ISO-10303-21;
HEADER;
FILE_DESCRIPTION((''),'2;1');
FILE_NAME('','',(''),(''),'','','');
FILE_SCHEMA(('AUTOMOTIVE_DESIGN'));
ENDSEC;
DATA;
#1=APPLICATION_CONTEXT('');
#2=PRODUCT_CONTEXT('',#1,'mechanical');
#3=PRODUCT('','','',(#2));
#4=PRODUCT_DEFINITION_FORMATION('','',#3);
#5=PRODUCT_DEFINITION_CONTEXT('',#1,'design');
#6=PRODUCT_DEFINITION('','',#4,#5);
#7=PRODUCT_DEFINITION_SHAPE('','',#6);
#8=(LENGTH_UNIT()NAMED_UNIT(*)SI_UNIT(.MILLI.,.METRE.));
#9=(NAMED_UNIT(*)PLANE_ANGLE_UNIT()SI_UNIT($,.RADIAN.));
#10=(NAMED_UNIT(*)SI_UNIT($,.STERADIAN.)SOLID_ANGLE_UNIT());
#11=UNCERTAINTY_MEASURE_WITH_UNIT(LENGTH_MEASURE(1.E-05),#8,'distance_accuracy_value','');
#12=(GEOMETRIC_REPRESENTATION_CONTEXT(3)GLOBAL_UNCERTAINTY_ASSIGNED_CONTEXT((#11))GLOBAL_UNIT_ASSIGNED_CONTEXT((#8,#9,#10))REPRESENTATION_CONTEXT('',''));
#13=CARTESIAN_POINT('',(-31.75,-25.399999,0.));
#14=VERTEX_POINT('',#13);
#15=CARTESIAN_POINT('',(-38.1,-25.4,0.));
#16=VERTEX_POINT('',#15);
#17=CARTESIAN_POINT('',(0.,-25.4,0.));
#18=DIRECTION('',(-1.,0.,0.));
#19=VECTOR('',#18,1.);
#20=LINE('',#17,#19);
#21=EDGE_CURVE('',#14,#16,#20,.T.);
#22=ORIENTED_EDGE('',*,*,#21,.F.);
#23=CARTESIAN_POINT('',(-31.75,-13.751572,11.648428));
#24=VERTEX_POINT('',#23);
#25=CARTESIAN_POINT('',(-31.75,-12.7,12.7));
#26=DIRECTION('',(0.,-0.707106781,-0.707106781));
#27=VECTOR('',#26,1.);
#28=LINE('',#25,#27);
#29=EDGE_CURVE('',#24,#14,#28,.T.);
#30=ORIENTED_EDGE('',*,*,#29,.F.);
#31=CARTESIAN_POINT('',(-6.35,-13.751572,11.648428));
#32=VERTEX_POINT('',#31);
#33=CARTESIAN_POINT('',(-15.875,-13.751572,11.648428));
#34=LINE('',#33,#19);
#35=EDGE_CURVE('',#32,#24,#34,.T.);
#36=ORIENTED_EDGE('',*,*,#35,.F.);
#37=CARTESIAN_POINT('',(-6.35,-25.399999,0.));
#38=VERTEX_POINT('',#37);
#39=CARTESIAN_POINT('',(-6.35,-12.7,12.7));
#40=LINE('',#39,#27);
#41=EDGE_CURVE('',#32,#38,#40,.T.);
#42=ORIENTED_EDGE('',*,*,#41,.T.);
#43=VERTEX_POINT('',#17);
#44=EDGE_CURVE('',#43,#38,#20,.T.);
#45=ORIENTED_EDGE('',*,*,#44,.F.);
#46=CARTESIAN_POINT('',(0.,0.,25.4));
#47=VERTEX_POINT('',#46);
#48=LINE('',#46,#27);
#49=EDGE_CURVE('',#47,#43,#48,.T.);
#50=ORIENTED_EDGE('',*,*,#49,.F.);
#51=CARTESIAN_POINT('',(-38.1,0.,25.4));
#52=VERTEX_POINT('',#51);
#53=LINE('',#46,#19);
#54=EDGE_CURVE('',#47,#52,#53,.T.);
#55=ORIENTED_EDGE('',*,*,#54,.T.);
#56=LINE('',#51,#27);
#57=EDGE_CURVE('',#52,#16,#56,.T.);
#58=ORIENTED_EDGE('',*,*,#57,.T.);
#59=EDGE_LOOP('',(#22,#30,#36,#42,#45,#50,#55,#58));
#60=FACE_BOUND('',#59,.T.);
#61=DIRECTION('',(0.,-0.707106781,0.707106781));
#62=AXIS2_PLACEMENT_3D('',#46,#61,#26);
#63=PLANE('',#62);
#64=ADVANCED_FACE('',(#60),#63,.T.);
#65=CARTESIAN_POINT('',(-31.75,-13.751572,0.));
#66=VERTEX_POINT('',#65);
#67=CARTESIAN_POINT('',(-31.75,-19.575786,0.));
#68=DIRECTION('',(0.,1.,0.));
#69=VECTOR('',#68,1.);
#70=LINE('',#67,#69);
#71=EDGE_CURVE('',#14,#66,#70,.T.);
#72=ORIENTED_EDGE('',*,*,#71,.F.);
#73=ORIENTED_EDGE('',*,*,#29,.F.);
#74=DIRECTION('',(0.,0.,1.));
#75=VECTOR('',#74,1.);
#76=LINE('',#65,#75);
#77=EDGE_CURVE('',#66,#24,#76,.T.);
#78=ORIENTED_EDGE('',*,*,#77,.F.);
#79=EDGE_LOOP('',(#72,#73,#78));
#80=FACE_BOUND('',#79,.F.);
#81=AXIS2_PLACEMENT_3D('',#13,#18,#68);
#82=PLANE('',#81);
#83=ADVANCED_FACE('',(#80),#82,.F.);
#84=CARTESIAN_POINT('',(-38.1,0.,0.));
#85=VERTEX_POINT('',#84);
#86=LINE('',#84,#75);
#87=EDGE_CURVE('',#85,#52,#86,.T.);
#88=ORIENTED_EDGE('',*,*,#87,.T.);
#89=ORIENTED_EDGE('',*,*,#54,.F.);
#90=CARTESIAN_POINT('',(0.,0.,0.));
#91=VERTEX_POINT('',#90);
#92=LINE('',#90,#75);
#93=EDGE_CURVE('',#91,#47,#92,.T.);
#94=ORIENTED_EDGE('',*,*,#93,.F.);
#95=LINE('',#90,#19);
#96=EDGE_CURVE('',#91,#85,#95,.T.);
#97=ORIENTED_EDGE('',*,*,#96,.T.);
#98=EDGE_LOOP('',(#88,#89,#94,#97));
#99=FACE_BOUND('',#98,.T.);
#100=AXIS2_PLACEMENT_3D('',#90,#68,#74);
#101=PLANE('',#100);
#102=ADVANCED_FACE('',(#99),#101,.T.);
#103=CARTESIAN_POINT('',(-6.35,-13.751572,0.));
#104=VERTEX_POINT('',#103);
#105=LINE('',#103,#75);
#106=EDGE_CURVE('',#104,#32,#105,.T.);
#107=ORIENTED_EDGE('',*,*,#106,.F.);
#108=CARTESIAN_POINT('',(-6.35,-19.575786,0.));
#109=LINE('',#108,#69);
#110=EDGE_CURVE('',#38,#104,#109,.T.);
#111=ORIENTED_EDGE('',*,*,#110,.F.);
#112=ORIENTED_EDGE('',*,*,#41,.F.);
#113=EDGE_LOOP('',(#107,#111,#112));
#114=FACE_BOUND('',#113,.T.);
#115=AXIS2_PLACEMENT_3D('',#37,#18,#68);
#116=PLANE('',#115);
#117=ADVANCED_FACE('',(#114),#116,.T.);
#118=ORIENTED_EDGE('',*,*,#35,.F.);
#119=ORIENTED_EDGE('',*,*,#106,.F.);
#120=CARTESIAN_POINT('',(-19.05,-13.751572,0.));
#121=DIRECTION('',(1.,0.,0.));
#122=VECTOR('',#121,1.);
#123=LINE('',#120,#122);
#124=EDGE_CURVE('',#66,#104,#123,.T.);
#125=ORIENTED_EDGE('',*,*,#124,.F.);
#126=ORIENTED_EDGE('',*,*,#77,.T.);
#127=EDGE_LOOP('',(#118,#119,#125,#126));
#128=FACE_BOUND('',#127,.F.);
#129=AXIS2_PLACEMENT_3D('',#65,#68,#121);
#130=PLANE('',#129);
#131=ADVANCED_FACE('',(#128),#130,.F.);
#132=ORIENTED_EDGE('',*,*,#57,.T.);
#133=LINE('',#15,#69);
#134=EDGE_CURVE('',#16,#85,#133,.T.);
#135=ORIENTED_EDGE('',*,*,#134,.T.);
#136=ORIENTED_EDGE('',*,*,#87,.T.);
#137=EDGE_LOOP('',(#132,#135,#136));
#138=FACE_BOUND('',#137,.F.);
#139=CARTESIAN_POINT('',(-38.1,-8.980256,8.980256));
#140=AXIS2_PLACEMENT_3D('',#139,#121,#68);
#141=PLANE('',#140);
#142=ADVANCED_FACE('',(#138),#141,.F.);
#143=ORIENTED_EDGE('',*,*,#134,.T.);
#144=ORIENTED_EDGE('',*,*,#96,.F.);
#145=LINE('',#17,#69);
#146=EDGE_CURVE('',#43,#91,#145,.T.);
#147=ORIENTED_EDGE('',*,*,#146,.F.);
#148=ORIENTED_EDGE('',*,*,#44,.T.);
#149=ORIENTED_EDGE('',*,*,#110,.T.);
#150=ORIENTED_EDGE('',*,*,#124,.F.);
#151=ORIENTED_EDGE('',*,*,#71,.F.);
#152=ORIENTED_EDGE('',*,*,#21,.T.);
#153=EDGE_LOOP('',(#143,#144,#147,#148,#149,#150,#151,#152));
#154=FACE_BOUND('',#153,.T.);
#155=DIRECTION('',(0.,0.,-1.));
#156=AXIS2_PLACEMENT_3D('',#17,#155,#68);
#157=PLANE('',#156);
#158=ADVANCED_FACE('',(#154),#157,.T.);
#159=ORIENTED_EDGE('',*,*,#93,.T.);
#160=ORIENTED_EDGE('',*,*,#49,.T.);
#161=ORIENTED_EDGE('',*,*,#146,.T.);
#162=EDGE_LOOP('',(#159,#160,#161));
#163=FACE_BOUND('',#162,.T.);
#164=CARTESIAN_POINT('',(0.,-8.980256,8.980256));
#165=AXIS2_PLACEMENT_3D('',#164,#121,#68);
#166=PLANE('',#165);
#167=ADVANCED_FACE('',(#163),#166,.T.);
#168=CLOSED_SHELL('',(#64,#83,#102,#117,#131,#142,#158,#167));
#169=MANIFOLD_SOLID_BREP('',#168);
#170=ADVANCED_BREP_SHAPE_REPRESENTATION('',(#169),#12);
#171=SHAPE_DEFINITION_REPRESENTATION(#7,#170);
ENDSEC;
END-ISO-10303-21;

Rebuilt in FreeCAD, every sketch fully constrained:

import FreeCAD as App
import Part
import Sketcher
Q = App.Units.Quantity

doc = App.newDocument("Part")
body = doc.addObject("PartDesign::Body", "Body")

# Sketch on YZ plane
sketch1 = body.newObject("Sketcher::SketchObject", "Sketch")
sketch1.AttachmentSupport = (doc.getObject("YZ_Plane"), [""])
sketch1.MapMode = "FlatFace"
sketch1.addGeometry([
    Part.LineSegment(App.Vector(-25, 0, 0), App.Vector(0, 0, 0)),
    Part.LineSegment(App.Vector(0, 0, 0), App.Vector(0, 25, 0)),
    Part.LineSegment(App.Vector(0, 25, 0), App.Vector(-25, 0, 0)),
], False)
sketch1.addConstraint([
    Sketcher.Constraint("Coincident", 0, 2, 1, 1),
    Sketcher.Constraint("Coincident", 1, 2, 2, 1),
    Sketcher.Constraint("Coincident", 2, 2, 0, 1),
    Sketcher.Constraint("Horizontal", 0),
    Sketcher.Constraint("Vertical", 1),
    Sketcher.Constraint("Coincident", 0, 2, -1, 1),
    Sketcher.Constraint("Equal", 0, 1),
    Sketcher.Constraint("DistanceX", 0, 1, 0, 2, Q("1 in")),
])
pad1 = body.newObject("PartDesign::Pad", "Pad")
pad1.Profile = sketch1
pad1.Length = Q("1.5 in")
pad1.Reversed = True

# Sketch on XY plane
sketch2 = body.newObject("Sketcher::SketchObject", "Sketch001")
sketch2.AttachmentSupport = (doc.getObject("XY_Plane"), [""])
sketch2.MapMode = "FlatFace"
sketch2.addGeometry([
    Part.LineSegment(App.Vector(-32, -14, 0), App.Vector(-32, -25, 0)),
    Part.LineSegment(App.Vector(-32, -25, 0), App.Vector(-6, -25, 0)),
    Part.LineSegment(App.Vector(-6, -25, 0), App.Vector(-6, -14, 0)),
    Part.LineSegment(App.Vector(-6, -14, 0), App.Vector(-32, -14, 0)),
], False)
sketch2.addConstraint([
    Sketcher.Constraint("Coincident", 0, 2, 1, 1),
    Sketcher.Constraint("Coincident", 1, 2, 2, 1),
    Sketcher.Constraint("Coincident", 2, 2, 3, 1),
    Sketcher.Constraint("Coincident", 3, 2, 0, 1),
    Sketcher.Constraint("Vertical", 0),
    Sketcher.Constraint("Horizontal", 1),
    Sketcher.Constraint("Vertical", 2),
    Sketcher.Constraint("Horizontal", 3),
    Sketcher.Constraint("DistanceX", 1, 1, 1, 2, Q("1 in")),
    Sketcher.Constraint("DistanceY", 0, 2, -1, 1, Q("1 in")),
    Sketcher.Constraint("DistanceX", 0, 2, -1, 1, Q("1.25 in")),
    Sketcher.Constraint("DistanceY", 0, 2, 0, 1, 11.648427),
])
pocket1 = body.newObject("PartDesign::Pocket", "Pocket")
pocket1.Profile = sketch2
pocket1.Length = Q("1 in")
pocket1.Reversed = True

doc.recompute()
